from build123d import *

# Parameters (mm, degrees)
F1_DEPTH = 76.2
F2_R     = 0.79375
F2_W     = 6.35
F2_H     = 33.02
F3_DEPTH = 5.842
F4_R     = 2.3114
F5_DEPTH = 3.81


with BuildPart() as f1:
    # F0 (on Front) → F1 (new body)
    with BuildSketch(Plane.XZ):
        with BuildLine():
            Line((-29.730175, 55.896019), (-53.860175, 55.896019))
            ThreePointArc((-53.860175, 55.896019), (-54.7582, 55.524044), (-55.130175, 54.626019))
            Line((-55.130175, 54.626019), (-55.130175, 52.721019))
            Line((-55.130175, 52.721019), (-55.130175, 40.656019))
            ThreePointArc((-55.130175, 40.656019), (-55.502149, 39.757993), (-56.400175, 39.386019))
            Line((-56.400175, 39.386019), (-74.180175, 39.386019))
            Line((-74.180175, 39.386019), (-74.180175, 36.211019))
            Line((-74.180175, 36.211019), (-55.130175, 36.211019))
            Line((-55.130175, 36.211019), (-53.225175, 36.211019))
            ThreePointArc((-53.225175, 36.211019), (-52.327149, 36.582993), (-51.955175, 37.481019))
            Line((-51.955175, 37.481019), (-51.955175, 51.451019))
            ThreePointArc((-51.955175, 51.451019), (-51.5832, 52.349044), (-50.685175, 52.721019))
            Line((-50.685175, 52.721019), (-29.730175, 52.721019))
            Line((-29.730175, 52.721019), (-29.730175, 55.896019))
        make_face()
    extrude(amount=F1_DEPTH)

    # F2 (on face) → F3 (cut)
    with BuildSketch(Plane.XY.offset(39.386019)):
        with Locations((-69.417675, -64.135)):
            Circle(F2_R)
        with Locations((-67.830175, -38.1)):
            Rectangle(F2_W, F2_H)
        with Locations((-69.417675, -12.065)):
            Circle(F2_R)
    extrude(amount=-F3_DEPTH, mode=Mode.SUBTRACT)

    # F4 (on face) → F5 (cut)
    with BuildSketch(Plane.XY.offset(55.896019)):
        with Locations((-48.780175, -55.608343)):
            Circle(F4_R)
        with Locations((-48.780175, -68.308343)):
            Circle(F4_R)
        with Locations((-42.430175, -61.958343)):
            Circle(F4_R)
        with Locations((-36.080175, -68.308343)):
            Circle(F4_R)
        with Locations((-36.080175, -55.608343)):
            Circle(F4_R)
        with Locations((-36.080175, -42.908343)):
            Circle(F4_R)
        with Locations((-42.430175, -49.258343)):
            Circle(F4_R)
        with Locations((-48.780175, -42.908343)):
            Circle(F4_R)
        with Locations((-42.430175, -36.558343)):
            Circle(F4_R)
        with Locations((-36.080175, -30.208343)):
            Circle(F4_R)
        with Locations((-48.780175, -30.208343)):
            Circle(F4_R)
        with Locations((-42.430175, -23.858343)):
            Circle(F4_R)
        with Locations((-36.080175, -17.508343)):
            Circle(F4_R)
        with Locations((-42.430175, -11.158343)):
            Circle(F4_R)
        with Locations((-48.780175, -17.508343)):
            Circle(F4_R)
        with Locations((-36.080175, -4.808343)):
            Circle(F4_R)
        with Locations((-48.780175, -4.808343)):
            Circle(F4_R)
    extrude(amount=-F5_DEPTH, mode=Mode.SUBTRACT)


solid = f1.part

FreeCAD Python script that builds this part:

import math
import FreeCAD as App
import Part
import Sketcher
Q = App.Units.Quantity

doc = App.newDocument("Part")
body = doc.addObject("PartDesign::Body", "Body")

# Sketch on XZ plane
sketch1 = body.newObject("Sketcher::SketchObject", "Sketch")
sketch1.AttachmentSupport = (doc.getObject("XZ_Plane"), [""])
sketch1.MapMode = "FlatFace"
sketch1.addGeometry(Part.LineSegment(App.Vector(-29.7, 55.9, 0), App.Vector(-53.9, 55.9, 0)), False)
sketch1.addGeometry(Part.ArcOfCircle(Part.Circle(App.Vector(-53.9, 54.6, 0), App.Vector(0, 0, 1), 1.3), math.radians(90), math.radians(180)), False)
sketch1.addGeometry(Part.LineSegment(App.Vector(-55.1, 54.6, 0), App.Vector(-55.1, 40.7, 0)), False)
sketch1.addGeometry(Part.ArcOfCircle(Part.Circle(App.Vector(-56.4, 40.7, 0), App.Vector(0, 0, 1), 1.3), math.radians(-90), math.radians(0)), False)
sketch1.addGeometry(Part.LineSegment(App.Vector(-56.4, 39.4, 0), App.Vector(-74.2, 39.4, 0)), False)
sketch1.addGeometry(Part.LineSegment(App.Vector(-74.2, 39.4, 0), App.Vector(-74.2, 36.2, 0)), False)
sketch1.addGeometry(Part.LineSegment(App.Vector(-74.2, 36.2, 0), App.Vector(-53.2, 36.2, 0)), False)
sketch1.addGeometry(Part.ArcOfCircle(Part.Circle(App.Vector(-53.2, 37.5, 0), App.Vector(0, 0, 1), 1.3), math.radians(-90), math.radians(0)), False)
sketch1.addGeometry(Part.LineSegment(App.Vector(-52, 37.5, 0), App.Vector(-52, 51.5, 0)), False)
sketch1.addGeometry(Part.ArcOfCircle(Part.Circle(App.Vector(-50.7, 51.5, 0), App.Vector(0, 0, 1), 1.3), math.radians(90), math.radians(180)), False)
sketch1.addGeometry(Part.LineSegment(App.Vector(-50.7, 52.7, 0), App.Vector(-29.7, 52.7, 0)), False)
sketch1.addGeometry(Part.LineSegment(App.Vector(-29.7, 52.7, 0), App.Vector(-29.7, 55.9, 0)), False)
sketch1.addConstraint(Sketcher.Constraint("Tangent", 0, 2, 1, 1))
sketch1.addConstraint(Sketcher.Constraint("Tangent", 1, 2, 2, 1))
sketch1.addConstraint(Sketcher.Constraint("Tangent", 2, 2, 3, 2))
sketch1.addConstraint(Sketcher.Constraint("Tangent", 3, 1, 4, 1))
sketch1.addConstraint(Sketcher.Constraint("Coincident", 4, 2, 5, 1))
sketch1.addConstraint(Sketcher.Constraint("Coincident", 5, 2, 6, 1))
sketch1.addConstraint(Sketcher.Constraint("Tangent", 6, 2, 7, 1))
sketch1.addConstraint(Sketcher.Constraint("Tangent", 7, 2, 8, 1))
sketch1.addConstraint(Sketcher.Constraint("Tangent", 8, 2, 9, 2))
sketch1.addConstraint(Sketcher.Constraint("Tangent", 9, 1, 10, 1))
sketch1.addConstraint(Sketcher.Constraint("Coincident", 10, 2, 11, 1))
sketch1.addConstraint(Sketcher.Constraint("Coincident", 11, 2, 0, 1))
sketch1.addConstraint(Sketcher.Constraint("Horizontal", 0))
sketch1.addConstraint(Sketcher.Constraint("Vertical", 2))
sketch1.addConstraint(Sketcher.Constraint("Horizontal", 4))
sketch1.addConstraint(Sketcher.Constraint("Vertical", 5))
sketch1.addConstraint(Sketcher.Constraint("Horizontal", 6))
sketch1.addConstraint(Sketcher.Constraint("Vertical", 8))
sketch1.addConstraint(Sketcher.Constraint("Horizontal", 10))
sketch1.addConstraint(Sketcher.Constraint("Vertical", 11))
sketch1.addConstraint(Sketcher.Constraint("Equal", 3, 7))
sketch1.addConstraint(Sketcher.Constraint("Equal", 1, 9))
sketch1.addConstraint(Sketcher.Constraint("Equal", 6, 10))
sketch1.addConstraint(Sketcher.Constraint("Equal", 2, 8))
sketch1.addConstraint(Sketcher.Constraint("Radius", 1, Q("0.0500001 in")))
sketch1.addConstraint(Sketcher.Constraint("Radius", 3, Q("0.0499999 in")))
sketch1.addConstraint(Sketcher.Constraint("DistanceX", 4, 2, 4, 1, Q("0.7 in")))
sketch1.addConstraint(Sketcher.Constraint("DistanceX", 0, 2, 0, 1, Q("0.95 in")))
sketch1.addConstraint(Sketcher.Constraint("DistanceY", 2, 2, 2, 1, Q("0.55 in")))
sketch1.addConstraint(Sketcher.Constraint("DistanceY", 5, 2, 5, 1, Q("0.125 in")))
sketch1.addConstraint(Sketcher.Constraint("DistanceY", -1, 1, 0, 2, 55.896019))
sketch1.addConstraint(Sketcher.Constraint("DistanceX", 1, 3, -1, 1, 53.860173))
pad1 = body.newObject("PartDesign::Pad", "Pad")
pad1.Profile = sketch1
pad1.Length = Q("3 in")

# Sketch on XY plane
sketch2 = body.newObject("Sketcher::SketchObject", "Sketch001")
sketch2.AttachmentSupport = (doc.getObject("XY_Plane"), [""])
sketch2.MapMode = "FlatFace"
sketch2.AttachmentOffset = App.Placement(App.Vector(0, 0, 39.386019), App.Rotation())
sketch2.addGeometry(Part.Circle(App.Vector(-69.4, -64.1, 0), App.Vector(0, 0, 1), 0.8), False)
sketch2.addGeometry(Part.LineSegment(App.Vector(-71, -21.6, 0), App.Vector(-71, -54.6, 0)), False)
sketch2.addGeometry(Part.LineSegment(App.Vector(-71, -54.6, 0), App.Vector(-64.7, -54.6, 0)), False)
sketch2.addGeometry(Part.LineSegment(App.Vector(-64.7, -54.6, 0), App.Vector(-64.7, -21.6, 0)), False)
sketch2.addGeometry(Part.LineSegment(App.Vector(-64.7, -21.6, 0), App.Vector(-71, -21.6, 0)), False)
sketch2.addGeometry(Part.Circle(App.Vector(-69.4, -12.1, 0), App.Vector(0, 0, 1), 0.8), False)
sketch2.addConstraint(Sketcher.Constraint("Coincident", 1, 2, 2, 1))
sketch2.addConstraint(Sketcher.Constraint("Coincident", 2, 2, 3, 1))
sketch2.addConstraint(Sketcher.Constraint("Coincident", 3, 2, 4, 1))
sketch2.addConstraint(Sketcher.Constraint("Coincident", 4, 2, 1, 1))
sketch2.addConstraint(Sketcher.Constraint("Vertical", 1))
sketch2.addConstraint(Sketcher.Constraint("Horizontal", 2))
sketch2.addConstraint(Sketcher.Constraint("Vertical", 3))
sketch2.addConstraint(Sketcher.Constraint("Horizontal", 4))
sketch2.addConstraint(Sketcher.Constraint("Equal", 0, 5))
sketch2.addConstraint(Sketcher.Constraint("Vertical", 0, 3, 5, 3))
sketch2.addConstraint(Sketcher.Constraint("Diameter", 0, Q("0.0625 in")))
sketch2.addConstraint(Sketcher.Constraint("DistanceY", 1, 2, 1, 1, Q("1.3 in")))
sketch2.addConstraint(Sketcher.Constraint("DistanceX", 2, 1, 2, 2, Q("0.25 in")))
sketch2.addConstraint(Sketcher.Constraint("DistanceY", 1, 2, -1, 1, Q("2.15 in")))
sketch2.addConstraint(Sketcher.Constraint("DistanceY", 0, 3, 5, 3, Q("2.05 in")))
sketch2.addConstraint(Sketcher.Constraint("DistanceY", 0, 3, -1, 1, Q("2.525 in")))
sketch2.addConstraint(Sketcher.Constraint("DistanceX", 1, 2, 0, 3, Q("0.0625 in")))
sketch2.addConstraint(Sketcher.Constraint("DistanceX", 0, 3, -1, 1, 69.417675))
pocket1 = body.newObject("PartDesign::Pocket", "Pocket")
pocket1.Profile = sketch2
pocket1.Length = Q("0.23 in")

# Sketch on XY plane
sketch3 = body.newObject("Sketcher::SketchObject", "Sketch002")
sketch3.AttachmentSupport = (doc.getObject("XY_Plane"), [""])
sketch3.MapMode = "FlatFace"
sketch3.AttachmentOffset = App.Placement(App.Vector(0, 0, 55.896019), App.Rotation())
sketch3.addGeometry(Part.Circle(App.Vector(-48.8, -55.6, 0), App.Vector(0, 0, 1), 2.3), False)
sketch3.addGeometry(Part.Circle(App.Vector(-48.8, -68.3, 0), App.Vector(0, 0, 1), 2.3), False)
sketch3.addGeometry(Part.Circle(App.Vector(-42.4, -62, 0), App.Vector(0, 0, 1), 2.3), False)
sketch3.addGeometry(Part.Circle(App.Vector(-36.1, -68.3, 0), App.Vector(0, 0, 1), 2.3), False)
sketch3.addGeometry(Part.Circle(App.Vector(-36.1, -55.6, 0), App.Vector(0, 0, 1), 2.3), False)
sketch3.addGeometry(Part.Circle(App.Vector(-36.1, -42.9, 0), App.Vector(0, 0, 1), 2.3), False)
sketch3.addGeometry(Part.Circle(App.Vector(-42.4, -49.3, 0), App.Vector(0, 0, 1), 2.3), False)
sketch3.addGeometry(Part.Circle(App.Vector(-48.8, -42.9, 0), App.Vector(0, 0, 1), 2.3), False)
sketch3.addGeometry(Part.Circle(App.Vector(-42.4, -36.6, 0), App.Vector(0, 0, 1), 2.3), False)
sketch3.addGeometry(Part.Circle(App.Vector(-36.1, -30.2, 0), App.Vector(0, 0, 1), 2.3), False)
sketch3.addGeometry(Part.Circle(App.Vector(-48.8, -30.2, 0), App.Vector(0, 0, 1), 2.3), False)
sketch3.addGeometry(Part.Circle(App.Vector(-42.4, -23.9, 0), App.Vector(0, 0, 1), 2.3), False)
sketch3.addGeometry(Part.Circle(App.Vector(-36.1, -17.5, 0), App.Vector(0, 0, 1), 2.3), False)
sketch3.addGeometry(Part.Circle(App.Vector(-42.4, -11.2, 0), App.Vector(0, 0, 1), 2.3), False)
sketch3.addGeometry(Part.Circle(App.Vector(-48.8, -17.5, 0), App.Vector(0, 0, 1), 2.3), False)
sketch3.addGeometry(Part.Circle(App.Vector(-36.1, -4.8, 0), App.Vector(0, 0, 1), 2.3), False)
sketch3.addGeometry(Part.Circle(App.Vector(-48.8, -4.8, 0), App.Vector(0, 0, 1), 2.3), False)
sketch3.addConstraint(Sketcher.Constraint("Equal", 0, 1))
sketch3.addConstraint(Sketcher.Constraint("Equal", 1, 2))
sketch3.addConstraint(Sketcher.Constraint("Equal", 2, 3))
sketch3.addConstraint(Sketcher.Constraint("Equal", 3, 4))
sketch3.addConstraint(Sketcher.Constraint("Equal", 4, 5))
sketch3.addConstraint(Sketcher.Constraint("Equal", 5, 6))
sketch3.addConstraint(Sketcher.Constraint("Equal", 6, 7))
sketch3.addConstraint(Sketcher.Constraint("Equal", 7, 8))
sketch3.addConstraint(Sketcher.Constraint("Equal", 8, 9))
sketch3.addConstraint(Sketcher.Constraint("Equal", 9, 10))
sketch3.addConstraint(Sketcher.Constraint("Equal", 10, 11))
sketch3.addConstraint(Sketcher.Constraint("Equal", 11, 12))
sketch3.addConstraint(Sketcher.Constraint("Equal", 12, 13))
sketch3.addConstraint(Sketcher.Constraint("Equal", 13, 14))
sketch3.addConstraint(Sketcher.Constraint("Equal", 14, 15))
sketch3.addConstraint(Sketcher.Constraint("Equal", 15, 16))
sketch3.addConstraint(Sketcher.Constraint("Horizontal", 1, 3, 3, 3))
sketch3.addConstraint(Sketcher.Constraint("Horizontal", 0, 3, 4, 3))
sketch3.addConstraint(Sketcher.Constraint("Horizontal", 5, 3, 7, 3))
sketch3.addConstraint(Sketcher.Constraint("Horizontal", 9, 3, 10, 3))
sketch3.addConstraint(Sketcher.Constraint("Horizontal", 12, 3, 14, 3))
sketch3.addConstraint(Sketcher.Constraint("Horizontal", 15, 3, 16, 3))
sketch3.addConstraint(Sketcher.Constraint("Vertical", 0, 3, 1, 3))
sketch3.addConstraint(Sketcher.Constraint("Vertical", 3, 3, 4, 3))
sketch3.addConstraint(Sketcher.Constraint("Vertical", 4, 3, 5, 3))
sketch3.addConstraint(Sketcher.Constraint("Vertical", 2, 3, 6, 3))
sketch3.addConstraint(Sketcher.Constraint("Vertical", 1, 3, 7, 3))
sketch3.addConstraint(Sketcher.Constraint("Vertical", 6, 3, 8, 3))
sketch3.addConstraint(Sketcher.Constraint("Vertical", 5, 3, 9, 3))
sketch3.addConstraint(Sketcher.Constraint("Vertical", 7, 3, 10, 3))
sketch3.addConstraint(Sketcher.Constraint("Vertical", 8, 3, 11, 3))
sketch3.addConstraint(Sketcher.Constraint("Vertical", 9, 3, 12, 3))
sketch3.addConstraint(Sketcher.Constraint("Vertical", 11, 3, 13, 3))
sketch3.addConstraint(Sketcher.Constraint("Vertical", 10, 3, 14, 3))
sketch3.addConstraint(Sketcher.Constraint("Vertical", 12, 3, 15, 3))
sketch3.addConstraint(Sketcher.Constraint("Vertical", 14, 3, 16, 3))
sketch3.addConstraint(Sketcher.Constraint("Diameter", 0, Q("0.182 in")))
sketch3.addConstraint(Sketcher.Constraint("DistanceY", 3, 3, 5, 3, Q("1 in")))
sketch3.addConstraint(Sketcher.Constraint("DistanceY", 4, 3, 9, 3, Q("1 in")))
sketch3.addConstraint(Sketcher.Constraint("DistanceY", 5, 3, 12, 3, Q("1 in")))
sketch3.addConstraint(Sketcher.Constraint("DistanceY", 8, 3, 13, 3, Q("1 in")))
sketch3.addConstraint(Sketcher.Constraint("DistanceY", 9, 3, 15, 3, Q("1 in")))
sketch3.addConstraint(Sketcher.Constraint("DistanceY", 1, 3, 0, 3, Q("0.5 in")))
sketch3.addConstraint(Sketcher.Constraint("DistanceX", 1, 3, 3, 3, Q("0.5 in")))
sketch3.addConstraint(Sketcher.Constraint("DistanceY", 2, 3, 6, 3, Q("0.5 in")))
sketch3.addConstraint(Sketcher.Constraint("DistanceY", 6, 3, 8, 3, Q("0.5 in")))
sketch3.addConstraint(Sketcher.Constraint("DistanceY", 8, 3, 11, 3, Q("0.5 in")))
sketch3.addConstraint(Sketcher.Constraint("DistanceX", 1, 3, 2, 3, Q("0.25 in")))
sketch3.addConstraint(Sketcher.Constraint("DistanceY", 1, 3, 2, 3, Q("0.25 in")))
sketch3.addConstraint(Sketcher.Constraint("DistanceX", 0, 3, -1, 1, 48.780175))
sketch3.addConstraint(Sketcher.Constraint("DistanceY", 0, 3, -1, 1, 55.608343))
pocket2 = body.newObject("PartDesign::Pocket", "Pocket001")
pocket2.Profile = sketch3
pocket2.Length = Q("0.15 in")

doc.recompute()
